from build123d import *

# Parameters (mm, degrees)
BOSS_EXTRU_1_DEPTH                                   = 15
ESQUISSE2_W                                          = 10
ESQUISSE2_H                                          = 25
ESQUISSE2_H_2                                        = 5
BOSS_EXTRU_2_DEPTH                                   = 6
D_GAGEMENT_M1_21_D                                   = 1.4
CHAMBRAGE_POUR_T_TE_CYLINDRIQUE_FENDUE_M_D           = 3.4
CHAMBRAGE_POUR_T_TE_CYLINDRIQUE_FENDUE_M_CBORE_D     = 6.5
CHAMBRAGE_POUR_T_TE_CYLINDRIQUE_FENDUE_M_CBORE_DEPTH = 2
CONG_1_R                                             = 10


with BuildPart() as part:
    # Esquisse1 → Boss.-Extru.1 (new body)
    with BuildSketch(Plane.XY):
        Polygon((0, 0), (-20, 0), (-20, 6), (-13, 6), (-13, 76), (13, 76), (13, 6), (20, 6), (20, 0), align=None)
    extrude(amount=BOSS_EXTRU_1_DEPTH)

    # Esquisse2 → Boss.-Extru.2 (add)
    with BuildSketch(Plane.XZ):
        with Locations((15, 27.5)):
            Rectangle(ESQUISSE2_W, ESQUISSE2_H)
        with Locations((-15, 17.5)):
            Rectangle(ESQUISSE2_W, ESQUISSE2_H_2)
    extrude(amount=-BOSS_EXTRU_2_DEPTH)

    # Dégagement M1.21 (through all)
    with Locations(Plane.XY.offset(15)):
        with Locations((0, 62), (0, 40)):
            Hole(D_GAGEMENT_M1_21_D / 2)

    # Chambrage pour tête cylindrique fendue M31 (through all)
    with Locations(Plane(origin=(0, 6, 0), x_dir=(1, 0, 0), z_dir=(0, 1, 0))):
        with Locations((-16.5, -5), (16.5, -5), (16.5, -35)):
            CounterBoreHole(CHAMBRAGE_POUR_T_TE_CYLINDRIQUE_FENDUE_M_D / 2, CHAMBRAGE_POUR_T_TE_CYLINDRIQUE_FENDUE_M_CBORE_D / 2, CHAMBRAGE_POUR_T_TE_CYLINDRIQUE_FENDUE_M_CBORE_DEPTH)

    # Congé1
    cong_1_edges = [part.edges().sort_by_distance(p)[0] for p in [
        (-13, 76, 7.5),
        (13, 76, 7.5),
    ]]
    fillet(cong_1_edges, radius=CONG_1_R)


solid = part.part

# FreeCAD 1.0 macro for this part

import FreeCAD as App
import Part
import Sketcher


def edges_at(feature, points):
    """Names of the edges that pass closest to the given points."""
    edges = feature.Shape.Edges
    near = lambda p: min(range(len(edges)), key=lambda i: edges[i].distToShape(Part.Vertex(*p))[0])
    return sorted({f"Edge{near(p) + 1}" for p in points})

doc = App.newDocument("Part")
params = doc.addObject("Spreadsheet::Sheet", "Params")
for row, (alias, value) in enumerate([
    ("sketch1_width", "40 mm"),
    ("sketch1_width2", "7 mm"),
    ("sketch1_height", "6 mm"),
    ("sketch1_height2", "70 mm"),
    ("pad1_length", "15 mm"),
    ("sketch2_width", "10 mm"),
    ("sketch2_height", "25 mm"),
    ("sketch2_height2", "5 mm"),
    ("pad2_length", "6 mm"),
    ("sketch3_diameter", "1.4 mm"),
    ("hole_diameter", "1.4 mm"),
    ("sketch4_diameter", "3.4 mm"),
    ("hole2_diameter", "3.4 mm"),
    ("hole2_cbore_diameter", "6.5 mm"),
    ("hole2_cbore_depth", "2 mm"),
    ("fillet_radius", "10 mm"),
], start=1):
    params.set(f"A{row}", alias)
    params.set(f"B{row}", "=" + value)
    params.setAlias(f"B{row}", alias)

body = doc.addObject("PartDesign::Body", "Body")

# Sketch on XY plane
sketch1 = doc.addObject("Sketcher::SketchObject", "Sketch")
body.addObject(sketch1)
sketch1.AttachmentSupport = (doc.XY_Plane, [""])
sketch1.MapMode = "FlatFace"
sketch1.addGeometry([
    Part.LineSegment(App.Vector(-20, 0, 0), App.Vector(20, 0, 0)),  # 0
    Part.LineSegment(App.Vector(20, 0, 0), App.Vector(20, 6, 0)),  # 1
    Part.LineSegment(App.Vector(20, 6, 0), App.Vector(13, 6, 0)),  # 2
    Part.LineSegment(App.Vector(13, 6, 0), App.Vector(13, 76, 0)),  # 3
    Part.LineSegment(App.Vector(13, 76, 0), App.Vector(-13, 76, 0)),  # 4
    Part.LineSegment(App.Vector(-13, 76, 0), App.Vector(-13, 6, 0)),  # 5
    Part.LineSegment(App.Vector(-13, 6, 0), App.Vector(-20, 6, 0)),  # 6
    Part.LineSegment(App.Vector(-20, 6, 0), App.Vector(-20, 0, 0)),  # 7
], False)
sketch1.addConstraint([
    Sketcher.Constraint("Coincident", 0, 2, 1, 1),
    Sketcher.Constraint("Coincident", 1, 2, 2, 1),
    Sketcher.Constraint("Coincident", 2, 2, 3, 1),
    Sketcher.Constraint("Coincident", 3, 2, 4, 1),
    Sketcher.Constraint("Coincident", 4, 2, 5, 1),
    Sketcher.Constraint("Coincident", 5, 2, 6, 1),
    Sketcher.Constraint("Coincident", 6, 2, 7, 1),
    Sketcher.Constraint("Coincident", 7, 2, 0, 1),
    Sketcher.Constraint("Horizontal", 0),
    Sketcher.Constraint("Vertical", 1),
    Sketcher.Constraint("Horizontal", 2),
    Sketcher.Constraint("Vertical", 3),
    Sketcher.Constraint("Horizontal", 4),
    Sketcher.Constraint("Vertical", 5),
    Sketcher.Constraint("Horizontal", 6),
    Sketcher.Constraint("Vertical", 7),
    Sketcher.Constraint("Symmetric", 0, 2, 7, 2, -1, 1),
    Sketcher.Constraint("Symmetric", 2, 2, 5, 2, -2),
    Sketcher.Constraint("DistanceX", 0, 1, 0, 2, 40.0),
    Sketcher.Constraint("DistanceX", 2, 2, 2, 1, 7.0),
    Sketcher.Constraint("DistanceY", 1, 1, 1, 2, 6.0),
    Sketcher.Constraint("DistanceY", 3, 1, 3, 2, 70.0),
])
sketch1.setExpression("Constraints[18]", "Params.sketch1_width")
sketch1.setExpression("Constraints[19]", "Params.sketch1_width2")
sketch1.setExpression("Constraints[20]", "Params.sketch1_height")
sketch1.setExpression("Constraints[21]", "Params.sketch1_height2")
pad1 = doc.addObject("PartDesign::Pad", "Pad")
body.addObject(pad1)
pad1.Profile = sketch1
pad1.setExpression("Length", "Params.pad1_length")

# Sketch on XZ plane
sketch2 = doc.addObject("Sketcher::SketchObject", "Sketch001")
body.addObject(sketch2)
sketch2.AttachmentSupport = (doc.XZ_Plane, [""])
sketch2.MapMode = "FlatFace"
sketch2.addGeometry([
    Part.LineSegment(App.Vector(10, 40, 0), App.Vector(10, 15, 0)),  # 0
    Part.LineSegment(App.Vector(10, 15, 0), App.Vector(20, 15, 0)),  # 1
    Part.LineSegment(App.Vector(20, 15, 0), App.Vector(20, 40, 0)),  # 2
    Part.LineSegment(App.Vector(20, 40, 0), App.Vector(10, 40, 0)),  # 3
    Part.LineSegment(App.Vector(-20, 20, 0), App.Vector(-20, 15, 0)),  # 4
    Part.LineSegment(App.Vector(-20, 15, 0), App.Vector(-10, 15, 0)),  # 5
    Part.LineSegment(App.Vector(-10, 15, 0), App.Vector(-10, 20, 0)),  # 6
    Part.LineSegment(App.Vector(-10, 20, 0), App.Vector(-20, 20, 0)),  # 7
], False)
sketch2.addConstraint([
    Sketcher.Constraint("Coincident", 0, 2, 1, 1),
    Sketcher.Constraint("Coincident", 1, 2, 2, 1),
    Sketcher.Constraint("Coincident", 2, 2, 3, 1),
    Sketcher.Constraint("Coincident", 3, 2, 0, 1),
    Sketcher.Constraint("Coincident", 4, 2, 5, 1),
    Sketcher.Constraint("Coincident", 5, 2, 6, 1),
    Sketcher.Constraint("Coincident", 6, 2, 7, 1),
    Sketcher.Constraint("Coincident", 7, 2, 4, 1),
    Sketcher.Constraint("Vertical", 0),
    Sketcher.Constraint("Horizontal", 1),
    Sketcher.Constraint("Vertical", 2),
    Sketcher.Constraint("Horizontal", 3),
    Sketcher.Constraint("Vertical", 4),
    Sketcher.Constraint("Horizontal", 5),
    Sketcher.Constraint("Vertical", 6),
    Sketcher.Constraint("Horizontal", 7),
    Sketcher.Constraint("Symmetric", 1, 2, 4, 2, -2),
    Sketcher.Constraint("Equal", 3, 5),
    Sketcher.Constraint("DistanceX", 1, 1, 1, 2, 10.0),
    Sketcher.Constraint("DistanceY", 0, 2, 0, 1, 25.0),
    Sketcher.Constraint("DistanceY", 4, 2, 4, 1, 5.0),
    Sketcher.Constraint("DistanceX", -1, 1, 0, 2, 10.0),
    Sketcher.Constraint("DistanceY", -1, 1, 0, 2, 15.0),
])
sketch2.setExpression("Constraints[18]", "Params.sketch2_width")
sketch2.setExpression("Constraints[19]", "Params.sketch2_height")
sketch2.setExpression("Constraints[20]", "Params.sketch2_height2")
pad2 = doc.addObject("PartDesign::Pad", "Pad001")
body.addObject(pad2)
pad2.Profile = sketch2
pad2.setExpression("Length", "Params.pad2_length")
pad2.Reversed = True

# Sketch on XY plane
sketch3 = doc.addObject("Sketcher::SketchObject", "Sketch002")
body.addObject(sketch3)
sketch3.AttachmentSupport = (doc.XY_Plane, [""])
sketch3.MapMode = "FlatFace"
sketch3.AttachmentOffset = App.Placement(App.Vector(0, 0, 15), App.Rotation())
sketch3.addGeometry([
    Part.Circle(App.Vector(0, 62, 0), App.Vector(0, 0, 1), 0.7),
    Part.Circle(App.Vector(0, 40, 0), App.Vector(0, 0, 1), 0.7),
], False)
sketch3.addConstraint([
    Sketcher.Constraint("Equal", 0, 1),
    Sketcher.Constraint("PointOnObject", 0, 3, -2),
    Sketcher.Constraint("PointOnObject", 1, 3, -2),
    Sketcher.Constraint("Diameter", 0, 1.4),
    Sketcher.Constraint("DistanceY", -1, 1, 0, 3, 62.0),
    Sketcher.Constraint("DistanceY", -1, 1, 1, 3, 40.0),
])
sketch3.setExpression("Constraints[3]", "Params.sketch3_diameter")
doc.recompute()
hole = doc.addObject("PartDesign::Hole", "Hole")
body.addObject(hole)
hole.Profile = sketch3
hole.ThreadType = "None"
hole.setExpression("Diameter", "Params.hole_diameter")
hole.DepthType = "ThroughAll"

# Sketch on XZ plane
sketch4 = doc.addObject("Sketcher::SketchObject", "Sketch003")
body.addObject(sketch4)
sketch4.AttachmentSupport = (doc.XZ_Plane, [""])
sketch4.MapMode = "FlatFace"
sketch4.AttachmentOffset = App.Placement(App.Vector(0, 0, -6), App.Rotation())
sketch4.addGeometry([
    Part.Circle(App.Vector(-16.5, 5, 0), App.Vector(0, 0, 1), 1.7),
    Part.Circle(App.Vector(16.5, 5, 0), App.Vector(0, 0, 1), 1.7),
    Part.Circle(App.Vector(16.5, 35, 0), App.Vector(0, 0, 1), 1.7),
], False)
sketch4.addConstraint([
    Sketcher.Constraint("Equal", 0, 1),
    Sketcher.Constraint("Equal", 1, 2),
    Sketcher.Constraint("Symmetric", 0, 3, 1, 3, -2),
    Sketcher.Constraint("Vertical", 1, 3, 2, 3),
    Sketcher.Constraint("Diameter", 0, 3.4),
    Sketcher.Constraint("DistanceY", -1, 1, 0, 3, 5.0),
    Sketcher.Constraint("DistanceY", -1, 1, 2, 3, 35.0),
    Sketcher.Constraint("DistanceX", 0, 3, 1, 3, 33.0),
])
sketch4.setExpression("Constraints[4]", "Params.sketch4_diameter")
doc.recompute()
hole2 = doc.addObject("PartDesign::Hole", "Hole001")
body.addObject(hole2)
hole2.Profile = sketch4
hole2.ThreadType = "None"
hole2.setExpression("Diameter", "Params.hole2_diameter")
hole2.DepthType = "ThroughAll"
hole2.HoleCutType = "Counterbore"
hole2.setExpression("HoleCutDiameter", "Params.hole2_cbore_diameter")
hole2.setExpression("HoleCutDepth", "Params.hole2_cbore_depth")
hole2.Reversed = True
doc.recompute()

fillet = doc.addObject("PartDesign::Fillet", "Fillet")
body.addObject(fillet)
fillet.Base = (hole2, edges_at(hole2, [(-13, 76, 7.5), (13, 76, 7.5)]))
fillet.setExpression("Radius", "Params.fillet_radius")

doc.recompute()
